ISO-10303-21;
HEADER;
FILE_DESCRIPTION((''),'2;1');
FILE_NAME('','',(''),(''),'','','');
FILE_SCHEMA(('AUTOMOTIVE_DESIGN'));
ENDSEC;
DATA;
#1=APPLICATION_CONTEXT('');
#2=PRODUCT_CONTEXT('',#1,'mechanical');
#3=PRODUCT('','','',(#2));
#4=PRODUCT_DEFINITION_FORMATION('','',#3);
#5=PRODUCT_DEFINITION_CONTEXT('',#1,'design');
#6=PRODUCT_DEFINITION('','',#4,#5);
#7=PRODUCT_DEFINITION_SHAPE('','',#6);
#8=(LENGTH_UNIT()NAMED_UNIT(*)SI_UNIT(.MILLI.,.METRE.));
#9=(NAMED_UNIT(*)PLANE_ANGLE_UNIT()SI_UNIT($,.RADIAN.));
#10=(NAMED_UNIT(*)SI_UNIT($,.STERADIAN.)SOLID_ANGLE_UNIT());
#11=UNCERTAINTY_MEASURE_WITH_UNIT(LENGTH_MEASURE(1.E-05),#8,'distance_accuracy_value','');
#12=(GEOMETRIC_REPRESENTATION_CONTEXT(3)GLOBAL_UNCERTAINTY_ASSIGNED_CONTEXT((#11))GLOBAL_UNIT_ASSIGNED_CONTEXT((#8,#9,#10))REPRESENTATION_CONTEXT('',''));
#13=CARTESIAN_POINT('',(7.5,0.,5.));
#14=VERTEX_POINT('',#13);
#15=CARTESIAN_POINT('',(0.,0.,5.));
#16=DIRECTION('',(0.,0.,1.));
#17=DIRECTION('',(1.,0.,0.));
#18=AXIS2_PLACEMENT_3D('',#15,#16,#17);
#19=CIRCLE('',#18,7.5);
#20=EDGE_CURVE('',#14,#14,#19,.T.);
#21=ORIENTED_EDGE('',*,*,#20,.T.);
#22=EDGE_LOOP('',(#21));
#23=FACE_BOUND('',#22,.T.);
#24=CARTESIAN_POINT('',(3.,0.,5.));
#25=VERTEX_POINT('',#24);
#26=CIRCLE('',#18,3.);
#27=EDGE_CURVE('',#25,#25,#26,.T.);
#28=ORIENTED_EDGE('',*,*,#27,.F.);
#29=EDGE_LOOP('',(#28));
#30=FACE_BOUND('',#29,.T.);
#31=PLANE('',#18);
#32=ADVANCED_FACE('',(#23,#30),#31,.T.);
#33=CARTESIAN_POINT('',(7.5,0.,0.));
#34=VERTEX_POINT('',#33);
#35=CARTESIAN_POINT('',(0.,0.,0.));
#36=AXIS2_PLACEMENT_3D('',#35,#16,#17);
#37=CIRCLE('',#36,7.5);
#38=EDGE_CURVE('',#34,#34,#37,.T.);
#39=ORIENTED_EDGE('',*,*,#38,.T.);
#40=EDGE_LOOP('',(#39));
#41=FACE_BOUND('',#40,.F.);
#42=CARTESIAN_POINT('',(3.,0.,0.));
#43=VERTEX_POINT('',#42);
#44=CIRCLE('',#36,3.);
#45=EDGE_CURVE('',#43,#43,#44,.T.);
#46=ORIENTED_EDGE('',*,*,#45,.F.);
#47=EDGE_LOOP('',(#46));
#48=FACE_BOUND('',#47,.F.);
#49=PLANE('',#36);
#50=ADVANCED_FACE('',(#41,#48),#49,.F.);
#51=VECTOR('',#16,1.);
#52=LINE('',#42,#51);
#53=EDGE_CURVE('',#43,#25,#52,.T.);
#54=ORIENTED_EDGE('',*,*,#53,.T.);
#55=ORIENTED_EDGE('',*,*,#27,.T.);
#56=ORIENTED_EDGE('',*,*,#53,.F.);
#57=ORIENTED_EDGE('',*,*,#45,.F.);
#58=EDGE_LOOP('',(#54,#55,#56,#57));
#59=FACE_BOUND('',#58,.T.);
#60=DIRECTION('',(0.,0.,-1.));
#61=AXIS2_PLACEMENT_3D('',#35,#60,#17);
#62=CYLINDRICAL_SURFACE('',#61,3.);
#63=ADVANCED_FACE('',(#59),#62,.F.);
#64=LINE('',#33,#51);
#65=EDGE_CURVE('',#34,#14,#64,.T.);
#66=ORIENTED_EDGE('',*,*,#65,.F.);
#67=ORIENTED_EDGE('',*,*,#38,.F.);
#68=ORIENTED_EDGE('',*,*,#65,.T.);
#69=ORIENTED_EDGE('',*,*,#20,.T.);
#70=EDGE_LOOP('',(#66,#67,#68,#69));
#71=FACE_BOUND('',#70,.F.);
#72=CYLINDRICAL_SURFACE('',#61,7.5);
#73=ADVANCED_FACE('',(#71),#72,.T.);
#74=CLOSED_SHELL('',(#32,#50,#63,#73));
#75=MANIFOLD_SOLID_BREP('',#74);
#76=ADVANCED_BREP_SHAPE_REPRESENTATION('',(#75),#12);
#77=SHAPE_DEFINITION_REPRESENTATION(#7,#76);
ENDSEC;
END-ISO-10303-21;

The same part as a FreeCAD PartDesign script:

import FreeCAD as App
import Part
import Sketcher

V = App.Vector
Q = App.Units.Quantity

doc = App.newDocument("Part")
body = doc.addObject("PartDesign::Body", "Body")

sketch1 = body.newObject("Sketcher::SketchObject", "Sketch")
sketch1.AttachmentSupport = (doc.getObject("XY_Plane"), [""])
sketch1.MapMode = "FlatFace"
sketch1.addGeometry(Part.Circle(V(0, 0, 0), V(0, 0, 1), 7.5), False)
sketch1.addGeometry(Part.Circle(V(0, 0, 0), V(0, 0, 1), 3), False)
sketch1.addConstraint(Sketcher.Constraint("Coincident", 0, 3, -1, 1))
sketch1.addConstraint(Sketcher.Constraint("Coincident", 1, 3, -1, 1))
sketch1.addConstraint(Sketcher.Constraint("Diameter", 0, Q("15 mm")))
sketch1.addConstraint(Sketcher.Constraint("Diameter", 1, Q("6 mm")))
pad1 = body.newObject("PartDesign::Pad", "Pad")
pad1.Profile = sketch1
pad1.Length = 5

doc.recompute()
